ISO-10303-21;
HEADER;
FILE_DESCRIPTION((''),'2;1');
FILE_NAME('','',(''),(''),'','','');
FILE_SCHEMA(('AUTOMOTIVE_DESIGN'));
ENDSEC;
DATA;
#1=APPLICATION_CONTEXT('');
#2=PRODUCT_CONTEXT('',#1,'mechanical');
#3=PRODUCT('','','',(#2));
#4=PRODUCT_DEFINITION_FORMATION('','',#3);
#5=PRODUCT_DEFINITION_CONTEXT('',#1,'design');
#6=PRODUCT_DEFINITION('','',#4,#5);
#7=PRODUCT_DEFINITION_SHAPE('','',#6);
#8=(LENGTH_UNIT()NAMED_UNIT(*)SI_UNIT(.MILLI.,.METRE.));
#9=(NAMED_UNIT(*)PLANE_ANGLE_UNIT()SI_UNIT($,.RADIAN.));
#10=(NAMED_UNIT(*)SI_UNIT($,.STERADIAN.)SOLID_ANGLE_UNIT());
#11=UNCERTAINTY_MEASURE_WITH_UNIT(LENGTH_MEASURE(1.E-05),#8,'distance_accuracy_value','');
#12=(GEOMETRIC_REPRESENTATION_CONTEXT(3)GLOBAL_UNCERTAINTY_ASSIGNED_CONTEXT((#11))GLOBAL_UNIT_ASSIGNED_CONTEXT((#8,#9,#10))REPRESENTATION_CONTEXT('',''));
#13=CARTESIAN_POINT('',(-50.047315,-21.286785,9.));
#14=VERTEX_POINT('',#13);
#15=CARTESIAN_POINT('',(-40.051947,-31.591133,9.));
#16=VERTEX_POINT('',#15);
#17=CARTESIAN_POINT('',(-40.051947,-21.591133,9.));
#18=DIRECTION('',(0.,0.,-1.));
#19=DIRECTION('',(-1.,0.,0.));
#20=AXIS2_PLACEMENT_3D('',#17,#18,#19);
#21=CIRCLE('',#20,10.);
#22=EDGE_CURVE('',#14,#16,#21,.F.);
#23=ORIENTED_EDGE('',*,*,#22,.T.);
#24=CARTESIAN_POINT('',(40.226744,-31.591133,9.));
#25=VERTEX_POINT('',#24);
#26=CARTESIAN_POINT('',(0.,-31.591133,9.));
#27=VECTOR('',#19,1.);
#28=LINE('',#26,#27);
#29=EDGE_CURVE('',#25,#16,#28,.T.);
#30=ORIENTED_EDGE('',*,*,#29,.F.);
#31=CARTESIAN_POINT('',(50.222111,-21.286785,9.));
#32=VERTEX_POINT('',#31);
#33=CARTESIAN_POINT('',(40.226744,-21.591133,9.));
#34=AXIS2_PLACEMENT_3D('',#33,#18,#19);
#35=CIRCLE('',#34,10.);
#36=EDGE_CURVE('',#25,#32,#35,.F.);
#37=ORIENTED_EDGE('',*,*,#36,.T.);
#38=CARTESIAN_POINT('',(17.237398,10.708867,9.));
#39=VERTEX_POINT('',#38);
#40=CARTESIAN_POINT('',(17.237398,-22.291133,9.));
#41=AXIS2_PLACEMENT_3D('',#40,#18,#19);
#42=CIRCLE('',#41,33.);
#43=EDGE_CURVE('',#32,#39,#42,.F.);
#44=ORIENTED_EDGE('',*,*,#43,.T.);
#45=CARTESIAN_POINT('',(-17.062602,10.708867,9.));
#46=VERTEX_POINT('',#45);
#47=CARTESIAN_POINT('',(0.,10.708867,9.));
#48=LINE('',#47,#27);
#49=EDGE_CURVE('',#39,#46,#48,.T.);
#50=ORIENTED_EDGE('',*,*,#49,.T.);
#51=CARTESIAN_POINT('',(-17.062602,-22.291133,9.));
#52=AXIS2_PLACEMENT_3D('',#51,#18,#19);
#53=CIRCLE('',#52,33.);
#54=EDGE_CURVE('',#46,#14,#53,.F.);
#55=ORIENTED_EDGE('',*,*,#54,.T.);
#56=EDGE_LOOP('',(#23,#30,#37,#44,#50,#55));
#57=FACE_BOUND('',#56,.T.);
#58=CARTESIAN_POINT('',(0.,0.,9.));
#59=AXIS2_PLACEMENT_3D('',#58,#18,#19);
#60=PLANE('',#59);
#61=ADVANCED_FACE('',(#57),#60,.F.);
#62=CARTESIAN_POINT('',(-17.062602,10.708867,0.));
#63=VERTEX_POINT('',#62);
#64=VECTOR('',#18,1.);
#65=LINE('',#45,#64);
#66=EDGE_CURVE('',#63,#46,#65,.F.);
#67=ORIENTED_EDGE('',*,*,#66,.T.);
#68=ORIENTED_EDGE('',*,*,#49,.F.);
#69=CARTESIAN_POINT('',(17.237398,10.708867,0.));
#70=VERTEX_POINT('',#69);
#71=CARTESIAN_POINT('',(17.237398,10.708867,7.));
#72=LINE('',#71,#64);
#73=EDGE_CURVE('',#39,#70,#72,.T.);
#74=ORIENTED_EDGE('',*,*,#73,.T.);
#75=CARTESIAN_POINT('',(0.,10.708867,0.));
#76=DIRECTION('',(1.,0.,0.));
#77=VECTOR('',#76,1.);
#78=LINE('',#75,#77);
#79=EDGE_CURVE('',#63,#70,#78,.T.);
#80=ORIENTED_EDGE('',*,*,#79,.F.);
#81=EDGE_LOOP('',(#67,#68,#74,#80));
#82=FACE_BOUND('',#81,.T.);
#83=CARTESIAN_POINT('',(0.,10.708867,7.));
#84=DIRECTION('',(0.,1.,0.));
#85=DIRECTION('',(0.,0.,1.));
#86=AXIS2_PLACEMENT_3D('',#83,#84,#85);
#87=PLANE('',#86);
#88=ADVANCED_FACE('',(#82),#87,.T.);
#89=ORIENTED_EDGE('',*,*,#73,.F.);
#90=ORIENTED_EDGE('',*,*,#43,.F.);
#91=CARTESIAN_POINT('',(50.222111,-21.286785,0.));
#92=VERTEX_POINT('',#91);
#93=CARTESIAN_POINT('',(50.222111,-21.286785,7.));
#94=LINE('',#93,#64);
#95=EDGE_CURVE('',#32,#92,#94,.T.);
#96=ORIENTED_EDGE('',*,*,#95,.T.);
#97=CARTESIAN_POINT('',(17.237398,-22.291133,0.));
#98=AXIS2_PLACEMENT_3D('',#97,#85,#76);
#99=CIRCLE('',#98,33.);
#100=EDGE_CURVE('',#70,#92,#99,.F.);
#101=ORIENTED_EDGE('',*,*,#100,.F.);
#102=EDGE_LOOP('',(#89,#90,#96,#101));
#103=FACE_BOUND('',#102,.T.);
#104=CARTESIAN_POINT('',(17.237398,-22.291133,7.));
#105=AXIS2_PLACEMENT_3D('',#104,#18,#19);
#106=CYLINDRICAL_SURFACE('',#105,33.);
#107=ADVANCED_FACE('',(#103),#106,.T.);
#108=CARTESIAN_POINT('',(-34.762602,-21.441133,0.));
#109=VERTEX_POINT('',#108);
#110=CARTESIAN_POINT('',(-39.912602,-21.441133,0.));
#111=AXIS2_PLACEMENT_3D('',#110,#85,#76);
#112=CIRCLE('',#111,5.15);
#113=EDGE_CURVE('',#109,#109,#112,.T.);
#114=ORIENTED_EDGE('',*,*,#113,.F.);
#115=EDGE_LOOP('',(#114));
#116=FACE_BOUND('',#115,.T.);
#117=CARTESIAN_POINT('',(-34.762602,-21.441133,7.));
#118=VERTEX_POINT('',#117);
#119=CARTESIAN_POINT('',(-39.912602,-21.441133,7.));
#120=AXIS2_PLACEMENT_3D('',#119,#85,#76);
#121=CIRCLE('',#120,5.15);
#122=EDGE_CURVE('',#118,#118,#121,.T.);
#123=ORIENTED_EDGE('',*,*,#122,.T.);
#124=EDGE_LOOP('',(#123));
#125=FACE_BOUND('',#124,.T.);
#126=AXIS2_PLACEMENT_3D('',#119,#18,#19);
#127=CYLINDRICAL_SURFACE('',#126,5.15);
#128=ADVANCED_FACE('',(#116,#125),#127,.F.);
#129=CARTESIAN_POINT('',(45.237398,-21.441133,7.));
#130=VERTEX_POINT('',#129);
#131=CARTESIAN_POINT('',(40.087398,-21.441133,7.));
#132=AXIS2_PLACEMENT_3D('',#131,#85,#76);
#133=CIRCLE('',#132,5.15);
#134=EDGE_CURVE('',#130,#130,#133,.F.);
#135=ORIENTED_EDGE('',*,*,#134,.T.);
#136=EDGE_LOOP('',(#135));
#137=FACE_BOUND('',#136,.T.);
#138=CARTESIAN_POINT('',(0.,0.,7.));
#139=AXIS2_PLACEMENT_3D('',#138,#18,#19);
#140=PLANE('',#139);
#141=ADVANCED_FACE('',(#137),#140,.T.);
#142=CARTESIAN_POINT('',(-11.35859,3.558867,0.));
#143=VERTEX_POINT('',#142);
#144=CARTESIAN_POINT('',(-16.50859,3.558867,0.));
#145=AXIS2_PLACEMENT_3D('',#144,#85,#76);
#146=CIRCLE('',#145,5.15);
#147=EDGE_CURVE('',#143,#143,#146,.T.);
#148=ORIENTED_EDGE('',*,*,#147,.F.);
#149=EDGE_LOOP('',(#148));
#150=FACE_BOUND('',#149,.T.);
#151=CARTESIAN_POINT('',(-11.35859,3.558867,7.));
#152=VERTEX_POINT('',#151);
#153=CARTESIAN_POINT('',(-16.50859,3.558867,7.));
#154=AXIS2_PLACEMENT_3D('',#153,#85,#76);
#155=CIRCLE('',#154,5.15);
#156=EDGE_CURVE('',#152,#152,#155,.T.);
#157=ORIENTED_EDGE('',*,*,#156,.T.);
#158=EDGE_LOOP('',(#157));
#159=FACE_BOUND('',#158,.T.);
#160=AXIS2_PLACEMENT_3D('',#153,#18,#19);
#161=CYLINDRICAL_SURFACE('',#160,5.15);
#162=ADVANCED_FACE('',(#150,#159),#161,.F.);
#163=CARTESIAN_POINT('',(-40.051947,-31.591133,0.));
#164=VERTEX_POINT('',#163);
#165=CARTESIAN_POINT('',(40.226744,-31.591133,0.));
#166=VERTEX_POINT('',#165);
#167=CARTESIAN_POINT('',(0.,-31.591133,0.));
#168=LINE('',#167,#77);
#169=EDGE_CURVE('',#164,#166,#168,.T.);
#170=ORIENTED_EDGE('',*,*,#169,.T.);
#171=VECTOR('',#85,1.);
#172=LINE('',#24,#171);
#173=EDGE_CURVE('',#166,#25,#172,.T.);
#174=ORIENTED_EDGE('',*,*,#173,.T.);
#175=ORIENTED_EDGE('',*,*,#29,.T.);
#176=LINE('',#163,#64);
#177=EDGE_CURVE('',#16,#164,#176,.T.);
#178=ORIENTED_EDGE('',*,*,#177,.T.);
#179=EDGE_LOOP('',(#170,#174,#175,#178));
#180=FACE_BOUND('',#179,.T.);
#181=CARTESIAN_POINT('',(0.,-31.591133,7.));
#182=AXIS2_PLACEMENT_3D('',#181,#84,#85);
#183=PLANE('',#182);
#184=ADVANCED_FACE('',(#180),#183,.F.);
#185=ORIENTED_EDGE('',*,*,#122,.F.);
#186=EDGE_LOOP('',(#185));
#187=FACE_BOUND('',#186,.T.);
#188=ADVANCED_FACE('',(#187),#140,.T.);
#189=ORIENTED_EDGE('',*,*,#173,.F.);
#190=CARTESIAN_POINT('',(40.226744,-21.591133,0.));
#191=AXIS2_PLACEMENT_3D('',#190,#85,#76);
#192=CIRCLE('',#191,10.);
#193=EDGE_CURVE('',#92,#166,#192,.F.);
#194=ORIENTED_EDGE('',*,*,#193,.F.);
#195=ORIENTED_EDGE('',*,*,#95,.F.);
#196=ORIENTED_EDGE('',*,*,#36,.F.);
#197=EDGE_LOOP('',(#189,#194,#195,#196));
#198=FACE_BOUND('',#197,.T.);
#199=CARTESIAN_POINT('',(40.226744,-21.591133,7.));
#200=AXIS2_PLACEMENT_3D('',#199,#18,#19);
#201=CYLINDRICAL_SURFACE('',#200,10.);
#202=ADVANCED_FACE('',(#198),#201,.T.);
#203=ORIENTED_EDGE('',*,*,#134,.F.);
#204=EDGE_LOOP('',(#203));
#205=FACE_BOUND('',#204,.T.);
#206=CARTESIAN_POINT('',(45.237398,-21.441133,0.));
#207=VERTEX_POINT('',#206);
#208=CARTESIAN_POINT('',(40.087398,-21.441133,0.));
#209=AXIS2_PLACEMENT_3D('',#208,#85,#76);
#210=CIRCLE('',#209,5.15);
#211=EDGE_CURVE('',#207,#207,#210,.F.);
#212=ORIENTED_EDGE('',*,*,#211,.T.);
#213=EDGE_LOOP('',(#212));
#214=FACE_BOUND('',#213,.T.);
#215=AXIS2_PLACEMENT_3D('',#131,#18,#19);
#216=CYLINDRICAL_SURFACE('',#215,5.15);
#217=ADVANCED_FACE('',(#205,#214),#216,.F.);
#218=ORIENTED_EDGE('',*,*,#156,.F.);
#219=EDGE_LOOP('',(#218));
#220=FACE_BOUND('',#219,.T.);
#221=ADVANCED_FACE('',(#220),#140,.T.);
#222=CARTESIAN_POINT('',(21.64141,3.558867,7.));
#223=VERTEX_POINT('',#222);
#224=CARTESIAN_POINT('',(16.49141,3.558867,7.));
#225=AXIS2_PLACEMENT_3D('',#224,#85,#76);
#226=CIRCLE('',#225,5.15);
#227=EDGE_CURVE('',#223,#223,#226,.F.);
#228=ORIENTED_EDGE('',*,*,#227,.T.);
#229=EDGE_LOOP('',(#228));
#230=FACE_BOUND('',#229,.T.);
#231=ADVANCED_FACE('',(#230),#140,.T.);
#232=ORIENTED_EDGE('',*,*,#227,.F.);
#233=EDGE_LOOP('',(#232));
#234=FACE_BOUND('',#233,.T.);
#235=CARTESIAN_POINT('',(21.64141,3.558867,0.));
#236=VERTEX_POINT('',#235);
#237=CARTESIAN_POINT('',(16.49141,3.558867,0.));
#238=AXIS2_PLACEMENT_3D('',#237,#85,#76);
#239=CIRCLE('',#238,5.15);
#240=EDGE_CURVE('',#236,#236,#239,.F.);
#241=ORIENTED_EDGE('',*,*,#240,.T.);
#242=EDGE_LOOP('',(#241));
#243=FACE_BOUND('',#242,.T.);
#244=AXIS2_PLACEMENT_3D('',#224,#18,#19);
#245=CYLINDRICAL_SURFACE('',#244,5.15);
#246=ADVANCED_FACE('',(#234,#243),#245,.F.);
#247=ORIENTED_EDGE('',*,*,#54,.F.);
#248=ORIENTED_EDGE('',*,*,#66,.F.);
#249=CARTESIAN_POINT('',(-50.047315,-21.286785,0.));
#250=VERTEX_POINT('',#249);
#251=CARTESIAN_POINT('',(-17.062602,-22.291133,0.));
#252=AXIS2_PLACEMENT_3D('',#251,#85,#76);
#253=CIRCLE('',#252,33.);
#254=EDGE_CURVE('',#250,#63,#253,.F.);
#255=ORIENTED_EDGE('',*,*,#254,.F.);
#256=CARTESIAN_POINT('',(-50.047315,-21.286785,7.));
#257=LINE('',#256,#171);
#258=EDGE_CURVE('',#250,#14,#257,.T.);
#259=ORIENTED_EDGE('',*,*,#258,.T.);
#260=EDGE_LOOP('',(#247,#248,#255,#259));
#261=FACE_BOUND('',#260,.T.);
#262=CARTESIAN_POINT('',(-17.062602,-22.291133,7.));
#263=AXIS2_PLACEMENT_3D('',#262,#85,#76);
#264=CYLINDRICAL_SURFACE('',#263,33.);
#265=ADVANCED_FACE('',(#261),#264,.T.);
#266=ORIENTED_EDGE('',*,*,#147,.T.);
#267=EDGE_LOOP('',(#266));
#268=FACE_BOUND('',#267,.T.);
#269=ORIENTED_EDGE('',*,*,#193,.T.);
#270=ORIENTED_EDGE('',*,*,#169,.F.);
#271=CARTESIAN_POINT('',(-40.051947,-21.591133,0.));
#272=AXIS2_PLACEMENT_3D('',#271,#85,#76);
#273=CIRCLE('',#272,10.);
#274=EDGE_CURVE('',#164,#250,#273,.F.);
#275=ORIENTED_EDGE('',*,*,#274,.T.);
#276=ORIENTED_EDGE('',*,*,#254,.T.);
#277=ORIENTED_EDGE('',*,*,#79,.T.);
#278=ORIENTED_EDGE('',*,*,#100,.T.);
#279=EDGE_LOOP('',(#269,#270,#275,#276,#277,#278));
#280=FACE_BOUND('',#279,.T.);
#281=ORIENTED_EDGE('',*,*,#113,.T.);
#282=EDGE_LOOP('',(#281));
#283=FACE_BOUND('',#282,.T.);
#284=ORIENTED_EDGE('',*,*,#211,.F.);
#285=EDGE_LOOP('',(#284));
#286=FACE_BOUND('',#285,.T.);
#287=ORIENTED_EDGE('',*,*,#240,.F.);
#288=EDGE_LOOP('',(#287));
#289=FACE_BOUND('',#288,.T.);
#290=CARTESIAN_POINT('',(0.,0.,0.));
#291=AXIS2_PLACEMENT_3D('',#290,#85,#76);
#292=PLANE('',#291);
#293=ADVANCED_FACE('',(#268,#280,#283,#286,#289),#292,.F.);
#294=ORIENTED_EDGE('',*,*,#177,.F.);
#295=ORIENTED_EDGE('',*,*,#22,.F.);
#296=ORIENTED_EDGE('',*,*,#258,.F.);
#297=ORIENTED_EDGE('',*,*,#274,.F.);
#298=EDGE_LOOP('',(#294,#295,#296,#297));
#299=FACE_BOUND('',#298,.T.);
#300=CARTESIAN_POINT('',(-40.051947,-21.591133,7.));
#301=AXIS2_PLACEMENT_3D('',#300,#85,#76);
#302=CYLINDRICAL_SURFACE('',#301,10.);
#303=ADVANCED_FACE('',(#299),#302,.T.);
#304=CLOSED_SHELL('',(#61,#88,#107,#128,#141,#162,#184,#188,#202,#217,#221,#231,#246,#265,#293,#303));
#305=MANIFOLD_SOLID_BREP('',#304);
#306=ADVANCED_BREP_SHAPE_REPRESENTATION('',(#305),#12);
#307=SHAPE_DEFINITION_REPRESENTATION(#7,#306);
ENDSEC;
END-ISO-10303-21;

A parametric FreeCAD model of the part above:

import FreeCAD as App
import Part
import Sketcher
from FreeCAD import Vector


def edges_at(feature, points):
    """Names of the edges that pass closest to the given points."""
    edges = feature.Shape.Edges
    near = lambda p: min(range(len(edges)), key=lambda i: edges[i].distToShape(Part.Vertex(*p))[0])
    return sorted({f"Edge{near(p) + 1}" for p in points})


def add_polygon(sketch, points):
    """Adds a closed chain of lines whose ends are joined by coincident constraints."""
    first, n = sketch.GeometryCount, len(points)
    for a, b in zip(points, points[1:] + points[:1]):
        sketch.addGeometry(Part.LineSegment(App.Vector(*a, 0), App.Vector(*b, 0)), False)
    for i in range(n):
        sketch.addConstraint(Sketcher.Constraint("Coincident", first + i, 2, first + (i + 1) % n, 1))

doc = App.newDocument("Part")
params = doc.addObject("Spreadsheet::Sheet", "Params")
for row, (alias, value) in enumerate([
    ("sketch1_diameter", "10.3 mm"),
    ("sketch1_width", "100.3 mm"),
    ("sketch1_height", "42.3 mm"),
    ("pad1_length", "7 mm"),
    ("sketch2_width", "100.3 mm"),
    ("sketch2_height", "42.3 mm"),
    ("pad2_length", "2 mm"),
    ("fillet_radius", "33 mm"),
    ("fillet2_radius", "10 mm"),
], start=1):
    params.set(f"A{row}", alias)
    params.set(f"B{row}", "=" + value)
    params.setAlias(f"B{row}", alias)

body = doc.addObject("PartDesign::Body", "Body")

# Sketch on XY plane
sketch1 = body.newObject("Sketcher::SketchObject", "Sketch")
sketch1.AttachmentSupport = (doc.getObject("XY_Plane"), [""])
sketch1.MapMode = "FlatFace"
add_polygon(sketch1, [(-50, 11), (-50, -32), (50, -32), (50, 11)])  # lines 0-3
sketch1.addGeometry(Part.Circle(Vector(-40, -21, 0), Vector(0, 0, 1), 5), False)  # 4
sketch1.addGeometry(Part.Circle(Vector(40, -21, 0), Vector(0, 0, 1), 5), False)  # 5
sketch1.addGeometry(Part.Circle(Vector(-17, 4, 0), Vector(0, 0, 1), 5), False)  # 6
sketch1.addGeometry(Part.Circle(Vector(16, 4, 0), Vector(0, 0, 1), 5), False)  # 7
sketch1.addConstraint(Sketcher.Constraint("Vertical", 0))
sketch1.addConstraint(Sketcher.Constraint("Horizontal", 1))
sketch1.addConstraint(Sketcher.Constraint("Vertical", 2))
sketch1.addConstraint(Sketcher.Constraint("Horizontal", 3))
sketch1.addConstraint(Sketcher.Constraint("Equal", 4, 5))
sketch1.addConstraint(Sketcher.Constraint("Equal", 5, 6))
sketch1.addConstraint(Sketcher.Constraint("Equal", 6, 7))
sketch1.addConstraint(Sketcher.Constraint("Horizontal", 4, 3, 5, 3))
sketch1.addConstraint(Sketcher.Constraint("Horizontal", 6, 3, 7, 3))
sketch1.addConstraint(Sketcher.Constraint("Diameter", 4, 10.3))
sketch1.addConstraint(Sketcher.Constraint("DistanceX", 1, 1, 1, 2, 100.3))
sketch1.addConstraint(Sketcher.Constraint("DistanceY", 0, 2, 0, 1, 42.3))
sketch1.addConstraint(Sketcher.Constraint("DistanceX", 4, 3, 5, 3, 80.0))
sketch1.addConstraint(Sketcher.Constraint("DistanceY", 4, 3, 6, 3, 25.0))
sketch1.addConstraint(Sketcher.Constraint("DistanceX", 6, 3, 7, 3, 33.0))
sketch1.addConstraint(Sketcher.Constraint("DistanceX", 0, 2, 4, 3, 10.15))
sketch1.addConstraint(Sketcher.Constraint("DistanceY", 0, 2, 4, 3, 10.15))
sketch1.addConstraint(Sketcher.Constraint("DistanceX", 4, 3, -1, 1, 39.912602))
sketch1.addConstraint(Sketcher.Constraint("DistanceX", 6, 3, -1, 1, 16.50859))
sketch1.addConstraint(Sketcher.Constraint("DistanceY", 4, 3, -1, 1, 21.441133))
sketch1.setExpression("Constraints[13]", "Params.sketch1_diameter")
sketch1.setExpression("Constraints[14]", "Params.sketch1_width")
sketch1.setExpression("Constraints[15]", "Params.sketch1_height")
pad1 = body.newObject("PartDesign::Pad", "Pad")
pad1.Profile = sketch1
pad1.setExpression("Length", "Params.pad1_length")

# Sketch on XY plane
sketch2 = body.newObject("Sketcher::SketchObject", "Sketch001")
sketch2.AttachmentSupport = (doc.getObject("XY_Plane"), [""])
sketch2.MapMode = "FlatFace"
sketch2.AttachmentOffset = App.Placement(Vector(0, 0, 7), App.Rotation())
add_polygon(sketch2, [(-50, 11), (-50, -32), (50, -32), (50, 11)])  # lines 0-3
sketch2.addConstraint(Sketcher.Constraint("Vertical", 0))
sketch2.addConstraint(Sketcher.Constraint("Horizontal", 1))
sketch2.addConstraint(Sketcher.Constraint("Vertical", 2))
sketch2.addConstraint(Sketcher.Constraint("Horizontal", 3))
sketch2.addConstraint(Sketcher.Constraint("DistanceX", 1, 1, 1, 2, 100.3))
sketch2.addConstraint(Sketcher.Constraint("DistanceY", 0, 2, 0, 1, 42.3))
sketch2.addConstraint(Sketcher.Constraint("DistanceX", 0, 2, -1, 1, 50.062602))
sketch2.addConstraint(Sketcher.Constraint("DistanceY", 0, 2, -1, 1, 31.591133))
sketch2.setExpression("Constraints[8]", "Params.sketch2_width")
sketch2.setExpression("Constraints[9]", "Params.sketch2_height")
pad2 = body.newObject("PartDesign::Pad", "Pad001")
pad2.Profile = sketch2
pad2.setExpression("Length", "Params.pad2_length")
doc.recompute()

fillet = body.newObject("PartDesign::Fillet", "Fillet")
fillet.Base = (pad2, edges_at(pad2, [(50.237, 10.709, 4.5), (-50.063, 10.709, 4.5)]))
fillet.setExpression("Radius", "Params.fillet_radius")
doc.recompute()

fillet2 = body.newObject("PartDesign::Fillet", "Fillet001")
fillet2.Base = (fillet, edges_at(fillet, [(50.237, -31.591, 4.5), (-50.063, -31.591, 4.5)]))
fillet2.setExpression("Radius", "Params.fillet2_radius")

doc.recompute()
